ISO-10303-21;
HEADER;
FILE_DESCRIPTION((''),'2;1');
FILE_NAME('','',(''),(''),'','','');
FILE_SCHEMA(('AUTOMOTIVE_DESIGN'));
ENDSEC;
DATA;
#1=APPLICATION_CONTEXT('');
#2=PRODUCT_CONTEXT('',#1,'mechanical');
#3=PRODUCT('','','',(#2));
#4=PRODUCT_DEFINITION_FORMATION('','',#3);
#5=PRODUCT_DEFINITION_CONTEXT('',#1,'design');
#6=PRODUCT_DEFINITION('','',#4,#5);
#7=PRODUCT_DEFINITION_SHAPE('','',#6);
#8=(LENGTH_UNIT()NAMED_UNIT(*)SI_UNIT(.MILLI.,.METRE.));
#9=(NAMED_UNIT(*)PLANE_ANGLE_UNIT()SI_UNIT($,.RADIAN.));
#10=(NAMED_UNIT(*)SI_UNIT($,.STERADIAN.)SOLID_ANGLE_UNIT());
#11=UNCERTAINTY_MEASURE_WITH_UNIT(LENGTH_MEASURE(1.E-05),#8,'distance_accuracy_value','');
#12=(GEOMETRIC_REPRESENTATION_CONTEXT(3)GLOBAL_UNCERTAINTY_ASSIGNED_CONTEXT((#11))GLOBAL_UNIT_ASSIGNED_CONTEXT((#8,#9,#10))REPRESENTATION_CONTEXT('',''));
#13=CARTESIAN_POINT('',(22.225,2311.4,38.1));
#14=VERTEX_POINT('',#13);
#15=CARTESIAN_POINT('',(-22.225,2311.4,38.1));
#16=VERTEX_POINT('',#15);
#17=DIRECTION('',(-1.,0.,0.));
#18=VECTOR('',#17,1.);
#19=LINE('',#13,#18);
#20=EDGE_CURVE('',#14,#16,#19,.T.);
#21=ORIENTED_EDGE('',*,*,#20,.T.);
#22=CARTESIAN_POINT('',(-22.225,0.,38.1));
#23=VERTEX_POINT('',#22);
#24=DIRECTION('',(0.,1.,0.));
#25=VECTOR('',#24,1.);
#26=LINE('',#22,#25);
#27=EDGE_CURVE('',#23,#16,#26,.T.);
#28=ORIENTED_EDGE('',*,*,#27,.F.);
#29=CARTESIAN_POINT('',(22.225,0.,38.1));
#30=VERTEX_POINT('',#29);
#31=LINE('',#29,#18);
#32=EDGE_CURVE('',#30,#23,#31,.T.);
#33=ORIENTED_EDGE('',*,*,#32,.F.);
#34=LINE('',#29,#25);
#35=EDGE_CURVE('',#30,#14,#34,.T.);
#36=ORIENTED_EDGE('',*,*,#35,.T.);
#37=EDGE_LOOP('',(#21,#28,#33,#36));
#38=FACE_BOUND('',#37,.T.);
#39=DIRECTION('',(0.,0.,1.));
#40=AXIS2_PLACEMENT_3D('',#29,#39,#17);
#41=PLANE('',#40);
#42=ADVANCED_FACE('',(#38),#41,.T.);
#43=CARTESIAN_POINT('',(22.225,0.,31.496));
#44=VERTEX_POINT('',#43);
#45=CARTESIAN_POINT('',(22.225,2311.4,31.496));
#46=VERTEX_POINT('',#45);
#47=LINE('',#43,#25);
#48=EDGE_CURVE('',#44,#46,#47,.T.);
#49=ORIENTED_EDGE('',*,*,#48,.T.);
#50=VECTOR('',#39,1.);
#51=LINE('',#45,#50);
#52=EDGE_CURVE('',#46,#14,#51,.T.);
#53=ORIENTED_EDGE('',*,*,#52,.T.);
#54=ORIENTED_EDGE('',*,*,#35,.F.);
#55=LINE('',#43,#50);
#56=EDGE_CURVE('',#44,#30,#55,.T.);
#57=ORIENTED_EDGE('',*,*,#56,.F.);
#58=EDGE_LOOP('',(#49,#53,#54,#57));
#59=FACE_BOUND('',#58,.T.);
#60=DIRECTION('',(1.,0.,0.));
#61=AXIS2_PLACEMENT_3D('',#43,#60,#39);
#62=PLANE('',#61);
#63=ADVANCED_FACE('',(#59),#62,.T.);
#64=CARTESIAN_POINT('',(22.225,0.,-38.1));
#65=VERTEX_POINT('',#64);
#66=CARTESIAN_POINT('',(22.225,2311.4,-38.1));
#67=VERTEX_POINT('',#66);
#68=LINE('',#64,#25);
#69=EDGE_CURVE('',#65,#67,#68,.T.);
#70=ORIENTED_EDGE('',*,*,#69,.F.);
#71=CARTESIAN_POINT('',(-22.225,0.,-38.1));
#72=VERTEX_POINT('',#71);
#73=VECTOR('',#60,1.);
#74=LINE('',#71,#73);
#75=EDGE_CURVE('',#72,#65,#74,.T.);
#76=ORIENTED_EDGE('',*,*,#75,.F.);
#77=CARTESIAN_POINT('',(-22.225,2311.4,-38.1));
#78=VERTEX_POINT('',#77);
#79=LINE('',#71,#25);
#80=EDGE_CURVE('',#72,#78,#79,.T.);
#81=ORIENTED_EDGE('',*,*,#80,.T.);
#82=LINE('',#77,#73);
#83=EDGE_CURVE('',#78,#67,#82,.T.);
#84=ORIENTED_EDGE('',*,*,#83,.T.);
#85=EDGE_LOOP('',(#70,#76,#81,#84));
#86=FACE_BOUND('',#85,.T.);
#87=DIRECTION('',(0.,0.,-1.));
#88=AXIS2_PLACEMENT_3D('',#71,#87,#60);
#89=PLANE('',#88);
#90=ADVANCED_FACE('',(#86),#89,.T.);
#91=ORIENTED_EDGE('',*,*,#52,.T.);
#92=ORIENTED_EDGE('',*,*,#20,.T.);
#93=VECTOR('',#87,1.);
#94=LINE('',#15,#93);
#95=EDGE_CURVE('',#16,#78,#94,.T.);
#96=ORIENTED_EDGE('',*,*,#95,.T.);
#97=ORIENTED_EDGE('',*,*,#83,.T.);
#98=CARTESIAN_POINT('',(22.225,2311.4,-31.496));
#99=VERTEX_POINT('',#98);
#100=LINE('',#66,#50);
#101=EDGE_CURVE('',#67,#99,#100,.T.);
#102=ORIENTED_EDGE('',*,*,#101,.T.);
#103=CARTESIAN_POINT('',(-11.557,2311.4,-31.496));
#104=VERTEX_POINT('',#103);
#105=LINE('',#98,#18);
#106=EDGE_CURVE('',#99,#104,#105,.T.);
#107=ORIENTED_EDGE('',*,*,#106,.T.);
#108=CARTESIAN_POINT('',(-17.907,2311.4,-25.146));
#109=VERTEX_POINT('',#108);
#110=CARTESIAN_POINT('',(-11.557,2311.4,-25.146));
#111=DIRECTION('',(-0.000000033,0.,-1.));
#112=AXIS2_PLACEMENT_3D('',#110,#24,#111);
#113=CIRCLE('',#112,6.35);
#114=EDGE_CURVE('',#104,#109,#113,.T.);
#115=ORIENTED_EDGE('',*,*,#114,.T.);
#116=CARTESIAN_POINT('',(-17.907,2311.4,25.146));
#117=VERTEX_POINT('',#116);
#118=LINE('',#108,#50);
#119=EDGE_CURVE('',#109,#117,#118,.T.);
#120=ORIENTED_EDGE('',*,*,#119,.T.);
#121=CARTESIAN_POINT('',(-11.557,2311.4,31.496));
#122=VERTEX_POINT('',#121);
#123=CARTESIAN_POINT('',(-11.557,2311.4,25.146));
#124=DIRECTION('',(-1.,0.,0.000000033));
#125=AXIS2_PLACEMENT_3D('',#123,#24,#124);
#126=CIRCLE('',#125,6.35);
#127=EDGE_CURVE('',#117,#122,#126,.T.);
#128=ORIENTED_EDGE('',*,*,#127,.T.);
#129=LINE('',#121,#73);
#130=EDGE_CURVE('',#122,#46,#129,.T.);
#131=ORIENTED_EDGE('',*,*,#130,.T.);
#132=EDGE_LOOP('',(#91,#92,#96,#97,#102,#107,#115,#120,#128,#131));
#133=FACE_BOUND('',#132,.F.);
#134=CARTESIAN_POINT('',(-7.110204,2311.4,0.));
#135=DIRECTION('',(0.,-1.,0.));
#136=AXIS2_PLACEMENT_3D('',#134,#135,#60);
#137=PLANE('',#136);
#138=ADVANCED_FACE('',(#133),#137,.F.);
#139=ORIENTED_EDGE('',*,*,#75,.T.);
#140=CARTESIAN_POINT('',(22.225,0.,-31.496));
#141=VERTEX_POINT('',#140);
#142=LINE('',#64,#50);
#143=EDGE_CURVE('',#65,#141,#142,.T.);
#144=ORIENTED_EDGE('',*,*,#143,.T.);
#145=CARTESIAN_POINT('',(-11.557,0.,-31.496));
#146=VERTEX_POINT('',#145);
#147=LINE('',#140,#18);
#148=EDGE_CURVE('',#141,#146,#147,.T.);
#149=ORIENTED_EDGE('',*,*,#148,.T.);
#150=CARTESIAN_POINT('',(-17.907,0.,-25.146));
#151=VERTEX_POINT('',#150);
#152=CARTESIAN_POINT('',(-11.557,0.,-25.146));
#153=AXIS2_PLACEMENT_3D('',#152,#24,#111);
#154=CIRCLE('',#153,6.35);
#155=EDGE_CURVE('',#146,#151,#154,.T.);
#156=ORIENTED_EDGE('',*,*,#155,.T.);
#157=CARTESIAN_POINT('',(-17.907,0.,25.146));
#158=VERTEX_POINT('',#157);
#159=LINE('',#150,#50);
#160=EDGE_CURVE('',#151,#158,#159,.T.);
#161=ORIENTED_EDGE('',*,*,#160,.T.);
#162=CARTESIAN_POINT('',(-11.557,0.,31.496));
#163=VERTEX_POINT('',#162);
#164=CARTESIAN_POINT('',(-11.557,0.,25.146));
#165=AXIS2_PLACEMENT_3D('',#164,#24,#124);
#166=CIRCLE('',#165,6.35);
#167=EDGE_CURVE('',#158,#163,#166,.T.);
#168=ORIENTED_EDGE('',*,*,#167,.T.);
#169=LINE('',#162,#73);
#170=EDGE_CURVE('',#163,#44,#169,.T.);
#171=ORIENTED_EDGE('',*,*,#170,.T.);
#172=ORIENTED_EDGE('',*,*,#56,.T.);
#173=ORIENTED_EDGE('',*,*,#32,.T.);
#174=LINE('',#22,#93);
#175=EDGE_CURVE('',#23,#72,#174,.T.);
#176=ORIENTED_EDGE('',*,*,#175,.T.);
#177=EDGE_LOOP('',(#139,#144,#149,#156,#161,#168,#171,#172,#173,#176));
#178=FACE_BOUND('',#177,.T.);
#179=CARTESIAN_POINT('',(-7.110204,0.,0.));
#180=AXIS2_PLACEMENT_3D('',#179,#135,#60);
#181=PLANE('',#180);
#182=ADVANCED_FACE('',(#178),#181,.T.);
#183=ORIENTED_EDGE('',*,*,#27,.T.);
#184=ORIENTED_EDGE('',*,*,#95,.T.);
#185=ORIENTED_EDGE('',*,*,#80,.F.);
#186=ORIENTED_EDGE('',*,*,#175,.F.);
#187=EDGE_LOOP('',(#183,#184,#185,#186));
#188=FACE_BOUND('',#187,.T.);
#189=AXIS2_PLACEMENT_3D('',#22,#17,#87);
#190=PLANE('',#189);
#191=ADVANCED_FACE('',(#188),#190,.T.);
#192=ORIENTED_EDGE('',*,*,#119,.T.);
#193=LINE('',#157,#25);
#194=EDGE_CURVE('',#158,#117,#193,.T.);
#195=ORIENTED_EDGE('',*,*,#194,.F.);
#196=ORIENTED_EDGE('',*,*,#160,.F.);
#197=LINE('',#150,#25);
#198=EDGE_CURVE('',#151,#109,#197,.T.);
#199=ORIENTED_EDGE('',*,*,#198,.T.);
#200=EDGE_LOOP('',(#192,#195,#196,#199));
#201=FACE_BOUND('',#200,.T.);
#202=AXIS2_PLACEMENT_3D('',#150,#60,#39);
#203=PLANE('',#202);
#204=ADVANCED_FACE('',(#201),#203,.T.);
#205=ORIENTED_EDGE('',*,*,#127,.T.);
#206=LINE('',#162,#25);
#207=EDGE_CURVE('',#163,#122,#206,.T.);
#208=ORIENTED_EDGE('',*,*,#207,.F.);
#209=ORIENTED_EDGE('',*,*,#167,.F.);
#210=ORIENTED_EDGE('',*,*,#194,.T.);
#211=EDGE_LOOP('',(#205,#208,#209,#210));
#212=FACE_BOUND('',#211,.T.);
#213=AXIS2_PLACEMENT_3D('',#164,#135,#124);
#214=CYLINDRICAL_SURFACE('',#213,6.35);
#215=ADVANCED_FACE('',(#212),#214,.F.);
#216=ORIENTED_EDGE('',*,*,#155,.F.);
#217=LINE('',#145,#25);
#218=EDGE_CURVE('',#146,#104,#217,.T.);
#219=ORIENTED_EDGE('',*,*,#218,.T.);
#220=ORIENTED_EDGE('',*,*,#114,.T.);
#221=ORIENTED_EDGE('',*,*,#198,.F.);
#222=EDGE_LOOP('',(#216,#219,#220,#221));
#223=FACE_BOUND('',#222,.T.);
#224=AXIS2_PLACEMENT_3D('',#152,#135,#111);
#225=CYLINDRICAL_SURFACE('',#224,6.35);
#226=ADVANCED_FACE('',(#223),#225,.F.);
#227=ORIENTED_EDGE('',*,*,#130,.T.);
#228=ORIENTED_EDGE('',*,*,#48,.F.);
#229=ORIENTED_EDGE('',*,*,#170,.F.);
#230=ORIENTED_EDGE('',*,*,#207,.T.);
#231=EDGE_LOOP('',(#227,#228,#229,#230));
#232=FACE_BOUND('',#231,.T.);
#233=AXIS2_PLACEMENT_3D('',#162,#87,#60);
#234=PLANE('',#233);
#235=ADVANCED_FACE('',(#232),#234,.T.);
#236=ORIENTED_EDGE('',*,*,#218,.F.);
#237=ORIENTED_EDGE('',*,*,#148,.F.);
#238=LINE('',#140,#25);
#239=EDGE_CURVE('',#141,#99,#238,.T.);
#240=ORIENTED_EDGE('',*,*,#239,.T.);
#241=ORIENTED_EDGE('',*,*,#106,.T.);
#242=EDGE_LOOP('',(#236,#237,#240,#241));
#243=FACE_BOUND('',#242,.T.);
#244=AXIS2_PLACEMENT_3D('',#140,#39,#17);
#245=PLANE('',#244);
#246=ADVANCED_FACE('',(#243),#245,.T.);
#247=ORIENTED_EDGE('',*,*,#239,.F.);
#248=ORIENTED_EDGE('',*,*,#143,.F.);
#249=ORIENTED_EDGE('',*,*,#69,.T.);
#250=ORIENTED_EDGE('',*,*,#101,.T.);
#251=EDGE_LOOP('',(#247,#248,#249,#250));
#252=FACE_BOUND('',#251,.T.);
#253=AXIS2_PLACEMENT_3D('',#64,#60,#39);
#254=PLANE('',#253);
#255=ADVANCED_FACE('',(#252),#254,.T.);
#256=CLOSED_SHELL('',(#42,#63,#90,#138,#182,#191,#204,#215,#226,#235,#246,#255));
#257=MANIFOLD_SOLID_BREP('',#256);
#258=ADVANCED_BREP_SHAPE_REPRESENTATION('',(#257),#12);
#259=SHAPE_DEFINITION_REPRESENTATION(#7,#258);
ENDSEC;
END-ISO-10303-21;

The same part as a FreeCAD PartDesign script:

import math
import FreeCAD as App
import Part
import Sketcher
Q = App.Units.Quantity

doc = App.newDocument("Part")
body = doc.addObject("PartDesign::Body", "Body")

sketch1 = body.newObject("Sketcher::SketchObject", "Sketch")
sketch1.AttachmentSupport = (doc.getObject("XZ_Plane"), [""])
sketch1.MapMode = "FlatFace"
sketch1.addGeometry(Part.LineSegment(App.Vector(-22, -38, 0), App.Vector(22, -38, 0)), False)
sketch1.addGeometry(Part.LineSegment(App.Vector(22, -38, 0), App.Vector(22, -31, 0)), False)
sketch1.addGeometry(Part.LineSegment(App.Vector(22, -31, 0), App.Vector(-12, -31, 0)), False)
sketch1.addGeometry(Part.ArcOfCircle(Part.Circle(App.Vector(-12, -25, 0), App.Vector(0, 0, 1), 6), math.radians(-180), math.radians(-90)), False)
sketch1.addGeometry(Part.LineSegment(App.Vector(-18, -25, 0), App.Vector(-18, 25, 0)), False)
sketch1.addGeometry(Part.ArcOfCircle(Part.Circle(App.Vector(-12, 25, 0), App.Vector(0, 0, 1), 6), math.radians(90), math.radians(180)), False)
sketch1.addGeometry(Part.LineSegment(App.Vector(-12, 31, 0), App.Vector(22, 31, 0)), False)
sketch1.addGeometry(Part.LineSegment(App.Vector(22, 31, 0), App.Vector(22, 38, 0)), False)
sketch1.addGeometry(Part.LineSegment(App.Vector(22, 38, 0), App.Vector(-22, 38, 0)), False)
sketch1.addGeometry(Part.LineSegment(App.Vector(-22, 38, 0), App.Vector(-22, -38, 0)), False)
sketch1.addConstraint(Sketcher.Constraint("Coincident", 0, 2, 1, 1))
sketch1.addConstraint(Sketcher.Constraint("Coincident", 1, 2, 2, 1))
sketch1.addConstraint(Sketcher.Constraint("Tangent", 2, 2, 3, 2))
sketch1.addConstraint(Sketcher.Constraint("Tangent", 3, 1, 4, 1))
sketch1.addConstraint(Sketcher.Constraint("Tangent", 4, 2, 5, 2))
sketch1.addConstraint(Sketcher.Constraint("Tangent", 5, 1, 6, 1))
sketch1.addConstraint(Sketcher.Constraint("Coincident", 6, 2, 7, 1))
sketch1.addConstraint(Sketcher.Constraint("Coincident", 7, 2, 8, 1))
sketch1.addConstraint(Sketcher.Constraint("Coincident", 8, 2, 9, 1))
sketch1.addConstraint(Sketcher.Constraint("Coincident", 9, 2, 0, 1))
sketch1.addConstraint(Sketcher.Constraint("Horizontal", 0))
sketch1.addConstraint(Sketcher.Constraint("Vertical", 1))
sketch1.addConstraint(Sketcher.Constraint("Horizontal", 2))
sketch1.addConstraint(Sketcher.Constraint("Vertical", 4))
sketch1.addConstraint(Sketcher.Constraint("Horizontal", 6))
sketch1.addConstraint(Sketcher.Constraint("Vertical", 7))
sketch1.addConstraint(Sketcher.Constraint("Horizontal", 8))
sketch1.addConstraint(Sketcher.Constraint("Vertical", 9))
sketch1.addConstraint(Sketcher.Constraint("Equal", 3, 5))
sketch1.addConstraint(Sketcher.Constraint("Symmetric", 0, 2, 8, 2, -1, 1))
sketch1.addConstraint(Sketcher.Constraint("Symmetric", 1, 2, 6, 2, -1))
sketch1.addConstraint(Sketcher.Constraint("DistanceY", 9, 2, 9, 1, Q("3 in")))
sketch1.addConstraint(Sketcher.Constraint("Radius", 3, Q("0.25 in")))
sketch1.addConstraint(Sketcher.Constraint("DistanceX", 0, 1, 0, 2, Q("1.75 in")))
sketch1.addConstraint(Sketcher.Constraint("DistanceX", 2, 2, 2, 1, Q("1.33 in")))
sketch1.addConstraint(Sketcher.Constraint("DistanceY", 1, 1, 1, 2, Q("0.26 in")))
pad1 = body.newObject("PartDesign::Pad", "Pad")
pad1.Profile = sketch1
pad1.Length = Q("91 in")
pad1.Reversed = True

doc.recompute()
